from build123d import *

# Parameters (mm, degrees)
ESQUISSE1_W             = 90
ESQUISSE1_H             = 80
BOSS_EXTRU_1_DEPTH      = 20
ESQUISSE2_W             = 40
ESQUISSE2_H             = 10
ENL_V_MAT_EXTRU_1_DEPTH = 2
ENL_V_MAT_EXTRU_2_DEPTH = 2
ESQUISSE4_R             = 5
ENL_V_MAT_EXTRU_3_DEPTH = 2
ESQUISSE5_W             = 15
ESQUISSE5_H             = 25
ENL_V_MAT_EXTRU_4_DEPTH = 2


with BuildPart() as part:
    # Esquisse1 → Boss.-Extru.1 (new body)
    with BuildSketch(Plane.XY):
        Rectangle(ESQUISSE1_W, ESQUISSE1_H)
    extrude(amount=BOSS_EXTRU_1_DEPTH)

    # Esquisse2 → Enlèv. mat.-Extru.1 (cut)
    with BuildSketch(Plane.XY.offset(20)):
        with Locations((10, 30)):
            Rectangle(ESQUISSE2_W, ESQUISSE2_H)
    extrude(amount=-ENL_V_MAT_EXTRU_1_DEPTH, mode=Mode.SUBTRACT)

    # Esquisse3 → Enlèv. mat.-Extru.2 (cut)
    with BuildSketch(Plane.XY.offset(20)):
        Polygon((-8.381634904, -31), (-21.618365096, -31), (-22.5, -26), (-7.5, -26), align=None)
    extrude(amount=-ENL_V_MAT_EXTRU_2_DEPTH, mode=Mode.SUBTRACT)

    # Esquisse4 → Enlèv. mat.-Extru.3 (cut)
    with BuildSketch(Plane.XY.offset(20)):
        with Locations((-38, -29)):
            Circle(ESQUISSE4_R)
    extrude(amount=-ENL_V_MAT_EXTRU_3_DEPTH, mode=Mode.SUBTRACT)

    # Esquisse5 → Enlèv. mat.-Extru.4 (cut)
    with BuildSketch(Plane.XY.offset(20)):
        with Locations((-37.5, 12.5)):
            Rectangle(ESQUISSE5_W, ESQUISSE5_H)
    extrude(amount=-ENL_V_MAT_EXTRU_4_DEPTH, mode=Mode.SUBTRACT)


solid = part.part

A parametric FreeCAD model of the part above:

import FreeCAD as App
import Part
import Sketcher

V = App.Vector
Q = App.Units.Quantity

doc = App.newDocument("Part")
body = doc.addObject("PartDesign::Body", "Body")

sketch1 = doc.addObject("Sketcher::SketchObject", "Sketch")
body.addObject(sketch1)
sketch1.AttachmentSupport = (doc.XY_Plane, [""])
sketch1.MapMode = "FlatFace"
sketch1.addGeometry([
    Part.LineSegment(V(-45, 40, 0), V(-45, -40, 0)),
    Part.LineSegment(V(-45, -40, 0), V(45, -40, 0)),
    Part.LineSegment(V(45, -40, 0), V(45, 40, 0)),
    Part.LineSegment(V(45, 40, 0), V(-45, 40, 0)),
], False)
sketch1.addConstraint([
    Sketcher.Constraint("Coincident", 0, 2, 1, 1),
    Sketcher.Constraint("Coincident", 1, 2, 2, 1),
    Sketcher.Constraint("Coincident", 2, 2, 3, 1),
    Sketcher.Constraint("Coincident", 3, 2, 0, 1),
    Sketcher.Constraint("Vertical", 0),
    Sketcher.Constraint("Horizontal", 1),
    Sketcher.Constraint("Vertical", 2),
    Sketcher.Constraint("Horizontal", 3),
    Sketcher.Constraint("Symmetric", 0, 2, 2, 2, -1, 1),
    Sketcher.Constraint("DistanceX", 1, 1, 1, 2, 90.0),
    Sketcher.Constraint("DistanceY", 0, 2, 0, 1, 80.0),
])
pad1 = doc.addObject("PartDesign::Pad", "Pad")
body.addObject(pad1)
pad1.Profile = sketch1
pad1.Length = 20

sketch2 = doc.addObject("Sketcher::SketchObject", "Sketch001")
body.addObject(sketch2)
sketch2.AttachmentSupport = (doc.XY_Plane, [""])
sketch2.MapMode = "FlatFace"
sketch2.AttachmentOffset = App.Placement(V(0, 0, 20), App.Rotation())
sketch2.addGeometry([
    Part.LineSegment(V(-10, 35, 0), V(-10, 25, 0)),
    Part.LineSegment(V(-10, 25, 0), V(30, 25, 0)),
    Part.LineSegment(V(30, 25, 0), V(30, 35, 0)),
    Part.LineSegment(V(30, 35, 0), V(-10, 35, 0)),
], False)
sketch2.addConstraint([
    Sketcher.Constraint("Coincident", 0, 2, 1, 1),
    Sketcher.Constraint("Coincident", 1, 2, 2, 1),
    Sketcher.Constraint("Coincident", 2, 2, 3, 1),
    Sketcher.Constraint("Coincident", 3, 2, 0, 1),
    Sketcher.Constraint("Vertical", 0),
    Sketcher.Constraint("Horizontal", 1),
    Sketcher.Constraint("Vertical", 2),
    Sketcher.Constraint("Horizontal", 3),
    Sketcher.Constraint("DistanceX", 1, 1, 1, 2, 40.0),
    Sketcher.Constraint("DistanceY", 0, 2, 0, 1, 10.0),
    Sketcher.Constraint("DistanceX", 0, 2, -1, 1, 10.0),
    Sketcher.Constraint("DistanceY", -1, 1, 0, 2, 25.0),
])
pocket1 = doc.addObject("PartDesign::Pocket", "Pocket")
body.addObject(pocket1)
pocket1.Profile = sketch2
pocket1.Length = 2

sketch3 = doc.addObject("Sketcher::SketchObject", "Sketch002")
body.addObject(sketch3)
sketch3.AttachmentSupport = (doc.XY_Plane, [""])
sketch3.MapMode = "FlatFace"
sketch3.AttachmentOffset = App.Placement(V(0, 0, 20), App.Rotation())
sketch3.addGeometry([
    Part.LineSegment(V(-22, -31, 0), V(-8, -31, 0)),
    Part.LineSegment(V(-8, -31, 0), V(-8, -26, 0)),
    Part.LineSegment(V(-8, -26, 0), V(-22, -26, 0)),
    Part.LineSegment(V(-22, -26, 0), V(-22, -31, 0)),
], False)
sketch3.addConstraint([
    Sketcher.Constraint("Coincident", 0, 2, 1, 1),
    Sketcher.Constraint("Coincident", 1, 2, 2, 1),
    Sketcher.Constraint("Coincident", 2, 2, 3, 1),
    Sketcher.Constraint("Coincident", 3, 2, 0, 1),
    Sketcher.Constraint("Horizontal", 0),
    Sketcher.Constraint("Horizontal", 2),
    Sketcher.Constraint("Equal", 1, 3),
    Sketcher.Constraint("DistanceX", 2, 2, 2, 1, 15.0),
    Sketcher.Constraint("Angle", 1, Q("80 deg")),
    Sketcher.Constraint("DistanceY", 0, 2, -1, 1, 31.0),
    Sketcher.Constraint("DistanceY", 1, 2, -1, 1, 26.0),
    Sketcher.Constraint("DistanceX", 1, 2, -1, 1, 7.5),
])
pocket2 = doc.addObject("PartDesign::Pocket", "Pocket001")
body.addObject(pocket2)
pocket2.Profile = sketch3
pocket2.Length = 2

sketch4 = doc.addObject("Sketcher::SketchObject", "Sketch003")
body.addObject(sketch4)
sketch4.AttachmentSupport = (doc.XY_Plane, [""])
sketch4.MapMode = "FlatFace"
sketch4.AttachmentOffset = App.Placement(V(0, 0, 20), App.Rotation())
sketch4.addGeometry(Part.Circle(V(-38, -29, 0), V(0, 0, 1), 5), False)
sketch4.addConstraint([
    Sketcher.Constraint("Diameter", 0, 10.0),
    Sketcher.Constraint("DistanceX", 0, 3, -1, 1, 38.0),
    Sketcher.Constraint("DistanceY", 0, 3, -1, 1, 29.0),
])
pocket3 = doc.addObject("PartDesign::Pocket", "Pocket002")
body.addObject(pocket3)
pocket3.Profile = sketch4
pocket3.Length = 2

sketch5 = doc.addObject("Sketcher::SketchObject", "Sketch004")
body.addObject(sketch5)
sketch5.AttachmentSupport = (doc.XY_Plane, [""])
sketch5.MapMode = "FlatFace"
sketch5.AttachmentOffset = App.Placement(V(0, 0, 20), App.Rotation())
sketch5.addGeometry([
    Part.LineSegment(V(-45, 25, 0), V(-45, 0, 0)),
    Part.LineSegment(V(-45, 0, 0), V(-30, 0, 0)),
    Part.LineSegment(V(-30, 0, 0), V(-30, 25, 0)),
    Part.LineSegment(V(-30, 25, 0), V(-45, 25, 0)),
], False)
sketch5.addConstraint([
    Sketcher.Constraint("Coincident", 0, 2, 1, 1),
    Sketcher.Constraint("Coincident", 1, 2, 2, 1),
    Sketcher.Constraint("Coincident", 2, 2, 3, 1),
    Sketcher.Constraint("Coincident", 3, 2, 0, 1),
    Sketcher.Constraint("Vertical", 0),
    Sketcher.Constraint("Horizontal", 1),
    Sketcher.Constraint("Vertical", 2),
    Sketcher.Constraint("Horizontal", 3),
    Sketcher.Constraint("PointOnObject", 0, 2, -1),
    Sketcher.Constraint("DistanceX", 1, 1, 1, 2, 15.0),
    Sketcher.Constraint("DistanceY", 0, 2, 0, 1, 25.0),
    Sketcher.Constraint("DistanceX", 0, 2, -1, 1, 45.0),
])
pocket4 = doc.addObject("PartDesign::Pocket", "Pocket003")
body.addObject(pocket4)
pocket4.Profile = sketch5
pocket4.Length = 2

doc.recompute()
